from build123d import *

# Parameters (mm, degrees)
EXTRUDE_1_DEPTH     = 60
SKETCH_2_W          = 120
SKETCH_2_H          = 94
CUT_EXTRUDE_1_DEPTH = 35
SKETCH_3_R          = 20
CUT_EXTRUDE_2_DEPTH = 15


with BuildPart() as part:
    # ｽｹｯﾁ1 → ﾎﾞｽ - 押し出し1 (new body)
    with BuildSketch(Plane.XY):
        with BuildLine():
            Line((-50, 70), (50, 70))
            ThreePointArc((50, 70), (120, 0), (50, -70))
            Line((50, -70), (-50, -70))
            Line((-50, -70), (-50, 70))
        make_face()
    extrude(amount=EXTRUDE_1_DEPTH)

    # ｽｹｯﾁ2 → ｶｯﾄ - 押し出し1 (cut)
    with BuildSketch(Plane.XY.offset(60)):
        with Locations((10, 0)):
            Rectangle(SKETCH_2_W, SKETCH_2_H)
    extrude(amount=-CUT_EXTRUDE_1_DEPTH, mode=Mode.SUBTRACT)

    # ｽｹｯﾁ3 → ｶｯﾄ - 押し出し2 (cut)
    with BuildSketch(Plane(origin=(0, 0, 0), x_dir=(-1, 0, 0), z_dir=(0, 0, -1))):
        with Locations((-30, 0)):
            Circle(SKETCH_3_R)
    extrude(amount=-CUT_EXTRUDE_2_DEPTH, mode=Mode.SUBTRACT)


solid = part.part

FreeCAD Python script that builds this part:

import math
import FreeCAD as App
import Part
import Sketcher

doc = App.newDocument("Part")
params = doc.addObject("Spreadsheet::Sheet", "Params")
for row, (alias, value) in enumerate([
    ("sketch1_radius", "70 mm"),
    ("sketch1_width", "100 mm"),
    ("pad1_length", "60 mm"),
    ("sketch2_width", "120 mm"),
    ("sketch2_height", "94 mm"),
    ("pocket1_length", "35 mm"),
    ("sketch3_diameter", "40 mm"),
    ("pocket2_length", "15 mm"),
], start=1):
    params.set(f"A{row}", alias)
    params.set(f"B{row}", "=" + value)
    params.setAlias(f"B{row}", alias)

body = doc.addObject("PartDesign::Body", "Body")

sketch1 = body.newObject("Sketcher::SketchObject", "Sketch")
sketch1.AttachmentSupport = (doc.getObject("XY_Plane"), [""])
sketch1.MapMode = "FlatFace"
sketch1.addGeometry([
    Part.LineSegment(App.Vector(50, 70, 0), App.Vector(-50, 70, 0)),
    Part.LineSegment(App.Vector(-50, 70, 0), App.Vector(-50, -70, 0)),
    Part.LineSegment(App.Vector(-50, -70, 0), App.Vector(50, -70, 0)),
    Part.ArcOfCircle(Part.Circle(App.Vector(50, 0, 0), App.Vector(0, 0, 1), 70), math.radians(-90), math.radians(90)),
], False)
sketch1.addConstraint([
    Sketcher.Constraint("Coincident", 0, 2, 1, 1),
    Sketcher.Constraint("Coincident", 1, 2, 2, 1),
    Sketcher.Constraint("Tangent", 2, 2, 3, 1),
    Sketcher.Constraint("Tangent", 3, 2, 0, 1),
    Sketcher.Constraint("Horizontal", 0),
    Sketcher.Constraint("Vertical", 1),
    Sketcher.Constraint("Horizontal", 2),
    Sketcher.Constraint("Symmetric", 0, 2, 2, 2, -1, 1),
    Sketcher.Constraint("Radius", 3, 70.0),
    Sketcher.Constraint("DistanceX", 0, 2, 0, 1, 100.0),
])
sketch1.setExpression("Constraints[8]", "Params.sketch1_radius")
sketch1.setExpression("Constraints[9]", "Params.sketch1_width")
pad1 = body.newObject("PartDesign::Pad", "Pad")
pad1.Profile = sketch1
pad1.setExpression("Length", "Params.pad1_length")

sketch2 = body.newObject("Sketcher::SketchObject", "Sketch001")
sketch2.AttachmentSupport = (doc.getObject("XY_Plane"), [""])
sketch2.MapMode = "FlatFace"
sketch2.AttachmentOffset = App.Placement(App.Vector(0, 0, 60), App.Rotation())
sketch2.addGeometry([
    Part.LineSegment(App.Vector(-50, 47, 0), App.Vector(-50, -47, 0)),
    Part.LineSegment(App.Vector(-50, -47, 0), App.Vector(70, -47, 0)),
    Part.LineSegment(App.Vector(70, -47, 0), App.Vector(70, 47, 0)),
    Part.LineSegment(App.Vector(70, 47, 0), App.Vector(-50, 47, 0)),
], False)
sketch2.addConstraint([
    Sketcher.Constraint("Coincident", 0, 2, 1, 1),
    Sketcher.Constraint("Coincident", 1, 2, 2, 1),
    Sketcher.Constraint("Coincident", 2, 2, 3, 1),
    Sketcher.Constraint("Coincident", 3, 2, 0, 1),
    Sketcher.Constraint("Vertical", 0),
    Sketcher.Constraint("Horizontal", 1),
    Sketcher.Constraint("Vertical", 2),
    Sketcher.Constraint("Horizontal", 3),
    Sketcher.Constraint("DistanceX", 1, 1, 1, 2, 120.0),
    Sketcher.Constraint("DistanceY", 0, 2, 0, 1, 94.0),
    Sketcher.Constraint("DistanceX", 0, 2, -1, 1, 50.0),
    Sketcher.Constraint("DistanceY", 0, 2, -1, 1, 47.0),
])
sketch2.setExpression("Constraints[8]", "Params.sketch2_width")
sketch2.setExpression("Constraints[9]", "Params.sketch2_height")
pocket1 = body.newObject("PartDesign::Pocket", "Pocket")
pocket1.Profile = sketch2
pocket1.setExpression("Length", "Params.pocket1_length")

sketch3 = body.newObject("Sketcher::SketchObject", "Sketch002")
sketch3.AttachmentSupport = (doc.getObject("XY_Plane"), [""])
sketch3.MapMode = "FlatFace"
sketch3.addGeometry(Part.Circle(App.Vector(30, 0, 0), App.Vector(0, 0, 1), 20), False)
sketch3.addConstraint([
    Sketcher.Constraint("PointOnObject", 0, 3, -1),
    Sketcher.Constraint("Diameter", 0, 40.0),
    Sketcher.Constraint("DistanceX", -1, 1, 0, 3, 30.0),
])
sketch3.setExpression("Constraints[1]", "Params.sketch3_diameter")
pocket2 = body.newObject("PartDesign::Pocket", "Pocket001")
pocket2.Profile = sketch3
pocket2.setExpression("Length", "Params.pocket2_length")
pocket2.Reversed = True

doc.recompute()
